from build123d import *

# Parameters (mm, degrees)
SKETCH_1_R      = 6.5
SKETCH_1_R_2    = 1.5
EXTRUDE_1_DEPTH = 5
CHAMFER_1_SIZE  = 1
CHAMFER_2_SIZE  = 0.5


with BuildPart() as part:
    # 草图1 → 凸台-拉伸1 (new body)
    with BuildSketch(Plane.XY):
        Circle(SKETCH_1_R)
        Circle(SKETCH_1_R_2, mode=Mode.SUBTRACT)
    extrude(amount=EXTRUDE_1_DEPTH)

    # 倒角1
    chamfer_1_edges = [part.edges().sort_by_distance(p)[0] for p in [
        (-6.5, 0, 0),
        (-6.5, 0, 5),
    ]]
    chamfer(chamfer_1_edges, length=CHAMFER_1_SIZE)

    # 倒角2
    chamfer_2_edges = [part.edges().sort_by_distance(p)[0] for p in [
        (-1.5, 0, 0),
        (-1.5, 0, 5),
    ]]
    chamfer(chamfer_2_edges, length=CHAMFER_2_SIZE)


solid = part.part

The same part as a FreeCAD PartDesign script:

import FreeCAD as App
import Part
import Sketcher
from FreeCAD import Vector
Q = App.Units.Quantity


def edges_at(feature, points):
    """Names of the edges that pass closest to the given points."""
    edges = feature.Shape.Edges
    near = lambda p: min(range(len(edges)), key=lambda i: edges[i].distToShape(Part.Vertex(*p))[0])
    return sorted({f"Edge{near(p) + 1}" for p in points})

doc = App.newDocument("Part")
params = doc.addObject("Spreadsheet::Sheet", "Params")
for row, (alias, value) in enumerate([
    ("sketch1_diameter", "13 mm"),
    ("sketch1_diameter2", "3 mm"),
    ("pad1_length", "5 mm"),
    ("chamfer_size", "1 mm"),
    ("chamfer2_size", "0.5 mm"),
], start=1):
    params.set(f"A{row}", alias)
    params.set(f"B{row}", "=" + value)
    params.setAlias(f"B{row}", alias)

body = doc.addObject("PartDesign::Body", "Body")

sketch1 = body.newObject("Sketcher::SketchObject", "Sketch")
sketch1.AttachmentSupport = (doc.getObject("XY_Plane"), [""])
sketch1.MapMode = "FlatFace"
sketch1.addGeometry(Part.Circle(Vector(0, 0, 0), Vector(0, 0, 1), 6.5), False)
sketch1.addGeometry(Part.Circle(Vector(0, 0, 0), Vector(0, 0, 1), 1.5), False)
sketch1.addConstraint(Sketcher.Constraint("Coincident", 0, 3, -1, 1))
sketch1.addConstraint(Sketcher.Constraint("Coincident", 1, 3, -1, 1))
sketch1.addConstraint(Sketcher.Constraint("Diameter", 0, Q("13 mm")))
sketch1.addConstraint(Sketcher.Constraint("Diameter", 1, Q("3 mm")))
sketch1.setExpression("Constraints[2]", "Params.sketch1_diameter")
sketch1.setExpression("Constraints[3]", "Params.sketch1_diameter2")
pad1 = body.newObject("PartDesign::Pad", "Pad")
pad1.Profile = sketch1
pad1.setExpression("Length", "Params.pad1_length")
doc.recompute()

chamfer = body.newObject("PartDesign::Chamfer", "Chamfer")
chamfer.Base = (pad1, edges_at(pad1, [(-6.5, 0, 0), (-6.5, 0, 5)]))
chamfer.setExpression("Size", "Params.chamfer_size")
doc.recompute()

chamfer2 = body.newObject("PartDesign::Chamfer", "Chamfer001")
chamfer2.Base = (chamfer, edges_at(chamfer, [(-1.5, 0, 0), (-1.5, 0, 5)]))
chamfer2.setExpression("Size", "Params.chamfer2_size")

doc.recompute()
